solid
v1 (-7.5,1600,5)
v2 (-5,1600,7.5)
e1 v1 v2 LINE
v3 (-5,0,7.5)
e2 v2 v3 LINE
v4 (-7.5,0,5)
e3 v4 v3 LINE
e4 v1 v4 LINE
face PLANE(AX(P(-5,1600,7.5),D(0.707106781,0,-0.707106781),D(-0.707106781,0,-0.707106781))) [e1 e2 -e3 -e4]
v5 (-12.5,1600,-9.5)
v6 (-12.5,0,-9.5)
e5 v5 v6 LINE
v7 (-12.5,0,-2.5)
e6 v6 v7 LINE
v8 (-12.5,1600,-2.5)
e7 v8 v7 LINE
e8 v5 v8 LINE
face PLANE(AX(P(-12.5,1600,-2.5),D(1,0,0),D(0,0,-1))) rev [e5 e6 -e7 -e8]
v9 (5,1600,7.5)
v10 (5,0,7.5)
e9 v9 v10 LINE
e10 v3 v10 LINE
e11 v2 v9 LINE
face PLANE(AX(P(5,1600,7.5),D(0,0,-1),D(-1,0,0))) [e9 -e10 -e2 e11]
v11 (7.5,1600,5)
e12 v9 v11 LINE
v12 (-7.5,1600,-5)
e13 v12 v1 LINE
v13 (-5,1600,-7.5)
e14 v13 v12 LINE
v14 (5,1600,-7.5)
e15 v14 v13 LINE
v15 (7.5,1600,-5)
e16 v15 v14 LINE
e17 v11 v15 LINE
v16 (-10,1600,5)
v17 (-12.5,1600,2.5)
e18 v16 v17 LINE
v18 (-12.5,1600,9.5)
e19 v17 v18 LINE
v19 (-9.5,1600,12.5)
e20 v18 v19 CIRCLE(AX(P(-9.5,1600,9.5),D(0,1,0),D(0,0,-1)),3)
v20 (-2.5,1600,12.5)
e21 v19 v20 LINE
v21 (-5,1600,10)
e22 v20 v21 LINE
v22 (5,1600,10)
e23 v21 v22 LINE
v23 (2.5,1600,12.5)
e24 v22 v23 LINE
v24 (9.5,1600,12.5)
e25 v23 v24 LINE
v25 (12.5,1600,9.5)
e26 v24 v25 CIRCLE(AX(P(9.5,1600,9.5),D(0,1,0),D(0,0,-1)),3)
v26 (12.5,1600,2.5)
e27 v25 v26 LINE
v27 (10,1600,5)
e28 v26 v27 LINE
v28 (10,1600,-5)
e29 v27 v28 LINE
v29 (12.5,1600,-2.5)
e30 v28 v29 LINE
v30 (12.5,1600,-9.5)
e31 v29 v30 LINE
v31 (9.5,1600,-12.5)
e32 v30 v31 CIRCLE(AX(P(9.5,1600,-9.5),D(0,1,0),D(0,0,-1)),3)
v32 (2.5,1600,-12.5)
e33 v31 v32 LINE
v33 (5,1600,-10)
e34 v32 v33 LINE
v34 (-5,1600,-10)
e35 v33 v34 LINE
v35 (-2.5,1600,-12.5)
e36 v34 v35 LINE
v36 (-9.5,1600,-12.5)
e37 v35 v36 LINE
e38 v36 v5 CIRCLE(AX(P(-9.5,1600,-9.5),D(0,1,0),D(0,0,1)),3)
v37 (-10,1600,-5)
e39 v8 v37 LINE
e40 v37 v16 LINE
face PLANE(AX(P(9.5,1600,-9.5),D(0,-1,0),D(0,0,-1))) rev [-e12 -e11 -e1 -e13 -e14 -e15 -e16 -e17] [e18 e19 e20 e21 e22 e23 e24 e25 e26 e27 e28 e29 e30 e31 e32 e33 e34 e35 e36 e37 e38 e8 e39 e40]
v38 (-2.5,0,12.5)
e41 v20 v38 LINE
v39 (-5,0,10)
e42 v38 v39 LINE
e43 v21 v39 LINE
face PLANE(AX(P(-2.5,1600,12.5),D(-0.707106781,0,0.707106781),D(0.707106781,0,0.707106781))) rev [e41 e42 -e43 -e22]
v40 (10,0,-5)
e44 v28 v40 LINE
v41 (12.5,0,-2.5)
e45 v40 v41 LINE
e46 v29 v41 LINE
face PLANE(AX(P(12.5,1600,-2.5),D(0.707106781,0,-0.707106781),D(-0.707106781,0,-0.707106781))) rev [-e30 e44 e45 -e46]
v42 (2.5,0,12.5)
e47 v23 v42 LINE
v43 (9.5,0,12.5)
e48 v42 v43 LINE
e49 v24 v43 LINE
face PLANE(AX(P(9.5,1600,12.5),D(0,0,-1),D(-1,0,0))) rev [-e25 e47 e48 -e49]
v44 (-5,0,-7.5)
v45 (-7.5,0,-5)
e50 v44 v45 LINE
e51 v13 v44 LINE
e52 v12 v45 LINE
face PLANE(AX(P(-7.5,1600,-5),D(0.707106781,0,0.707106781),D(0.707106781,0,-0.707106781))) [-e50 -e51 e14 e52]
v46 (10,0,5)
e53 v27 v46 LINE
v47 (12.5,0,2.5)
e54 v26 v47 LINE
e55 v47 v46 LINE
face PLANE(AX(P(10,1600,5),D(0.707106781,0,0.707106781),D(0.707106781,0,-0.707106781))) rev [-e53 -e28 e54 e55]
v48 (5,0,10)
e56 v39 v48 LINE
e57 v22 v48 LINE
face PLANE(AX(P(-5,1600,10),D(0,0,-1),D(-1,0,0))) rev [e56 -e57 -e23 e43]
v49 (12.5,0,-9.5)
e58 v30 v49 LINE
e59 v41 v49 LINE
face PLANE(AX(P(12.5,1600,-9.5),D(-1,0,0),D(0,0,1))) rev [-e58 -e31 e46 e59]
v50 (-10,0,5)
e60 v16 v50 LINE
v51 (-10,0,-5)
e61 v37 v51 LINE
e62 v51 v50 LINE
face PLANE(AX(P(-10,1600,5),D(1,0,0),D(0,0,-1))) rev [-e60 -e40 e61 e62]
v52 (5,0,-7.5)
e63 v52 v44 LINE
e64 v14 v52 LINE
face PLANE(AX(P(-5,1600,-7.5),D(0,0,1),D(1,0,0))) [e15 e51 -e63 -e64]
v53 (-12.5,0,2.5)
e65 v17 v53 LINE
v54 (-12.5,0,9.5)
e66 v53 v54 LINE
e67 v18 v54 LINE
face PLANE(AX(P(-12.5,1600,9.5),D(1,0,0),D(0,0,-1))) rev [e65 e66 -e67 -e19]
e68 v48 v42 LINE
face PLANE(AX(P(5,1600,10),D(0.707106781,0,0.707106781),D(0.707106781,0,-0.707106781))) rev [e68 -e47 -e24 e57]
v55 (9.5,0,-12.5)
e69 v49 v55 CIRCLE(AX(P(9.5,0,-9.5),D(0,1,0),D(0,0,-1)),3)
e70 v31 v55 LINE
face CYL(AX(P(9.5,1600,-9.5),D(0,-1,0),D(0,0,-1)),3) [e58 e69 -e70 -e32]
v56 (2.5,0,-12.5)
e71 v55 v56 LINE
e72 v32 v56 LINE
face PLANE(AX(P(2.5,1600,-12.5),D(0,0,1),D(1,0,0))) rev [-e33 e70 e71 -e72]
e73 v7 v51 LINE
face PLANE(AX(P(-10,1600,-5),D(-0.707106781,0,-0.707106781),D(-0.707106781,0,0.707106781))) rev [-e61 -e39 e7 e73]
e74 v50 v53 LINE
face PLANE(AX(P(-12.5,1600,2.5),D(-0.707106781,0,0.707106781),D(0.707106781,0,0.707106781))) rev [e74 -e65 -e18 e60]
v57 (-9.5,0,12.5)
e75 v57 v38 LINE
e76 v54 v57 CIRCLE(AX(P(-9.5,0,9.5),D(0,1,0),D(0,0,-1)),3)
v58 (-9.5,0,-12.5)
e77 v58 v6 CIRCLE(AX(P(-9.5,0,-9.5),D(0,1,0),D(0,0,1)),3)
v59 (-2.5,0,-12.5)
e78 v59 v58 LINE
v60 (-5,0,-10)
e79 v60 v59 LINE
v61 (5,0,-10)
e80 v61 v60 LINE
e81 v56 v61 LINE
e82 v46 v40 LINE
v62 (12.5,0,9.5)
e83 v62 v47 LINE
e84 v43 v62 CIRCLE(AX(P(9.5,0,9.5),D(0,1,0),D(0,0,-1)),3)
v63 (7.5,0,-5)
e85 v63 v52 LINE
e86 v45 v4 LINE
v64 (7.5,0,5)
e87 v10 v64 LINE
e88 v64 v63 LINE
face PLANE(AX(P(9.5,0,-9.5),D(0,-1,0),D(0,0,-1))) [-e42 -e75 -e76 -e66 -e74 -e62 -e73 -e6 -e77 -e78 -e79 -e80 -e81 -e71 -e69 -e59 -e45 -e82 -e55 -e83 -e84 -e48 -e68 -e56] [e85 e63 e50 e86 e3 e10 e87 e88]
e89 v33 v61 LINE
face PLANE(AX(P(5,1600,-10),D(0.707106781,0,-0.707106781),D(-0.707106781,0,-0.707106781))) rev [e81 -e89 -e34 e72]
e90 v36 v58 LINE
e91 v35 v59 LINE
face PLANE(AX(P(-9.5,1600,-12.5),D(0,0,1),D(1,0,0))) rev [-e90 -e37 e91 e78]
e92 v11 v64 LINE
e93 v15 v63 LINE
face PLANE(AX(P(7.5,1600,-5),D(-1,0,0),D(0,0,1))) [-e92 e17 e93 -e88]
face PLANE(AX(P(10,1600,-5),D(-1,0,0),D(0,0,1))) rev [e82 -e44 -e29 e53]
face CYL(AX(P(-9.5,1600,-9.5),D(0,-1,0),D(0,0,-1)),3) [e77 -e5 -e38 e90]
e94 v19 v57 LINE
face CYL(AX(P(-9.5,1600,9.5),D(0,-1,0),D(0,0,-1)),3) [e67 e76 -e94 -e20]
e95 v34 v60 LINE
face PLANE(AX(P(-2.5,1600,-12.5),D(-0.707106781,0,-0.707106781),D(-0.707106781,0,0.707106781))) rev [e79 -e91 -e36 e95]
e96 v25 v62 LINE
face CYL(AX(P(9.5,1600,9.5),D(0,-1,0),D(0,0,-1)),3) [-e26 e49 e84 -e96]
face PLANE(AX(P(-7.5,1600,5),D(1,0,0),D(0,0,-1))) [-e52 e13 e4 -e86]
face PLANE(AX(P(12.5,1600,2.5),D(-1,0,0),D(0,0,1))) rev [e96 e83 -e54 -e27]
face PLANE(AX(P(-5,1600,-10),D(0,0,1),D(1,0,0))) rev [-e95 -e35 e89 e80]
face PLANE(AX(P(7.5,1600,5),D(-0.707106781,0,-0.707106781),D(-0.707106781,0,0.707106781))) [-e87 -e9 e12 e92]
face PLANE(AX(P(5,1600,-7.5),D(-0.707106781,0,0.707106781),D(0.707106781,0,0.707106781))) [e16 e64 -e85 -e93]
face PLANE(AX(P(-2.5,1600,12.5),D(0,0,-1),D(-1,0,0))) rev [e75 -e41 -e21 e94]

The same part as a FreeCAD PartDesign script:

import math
import FreeCAD as App
import Part
import Sketcher

V = App.Vector
Q = App.Units.Quantity

doc = App.newDocument("Part")
body = doc.addObject("PartDesign::Body", "Body")

# Sketch on XZ plane
sketch1 = body.newObject("Sketcher::SketchObject", "Sketch")
sketch1.AttachmentSupport = (doc.getObject("XZ_Plane"), [""])
sketch1.MapMode = "FlatFace"
sketch1.addGeometry([
    Part.LineSegment(V(-2.5, -12.5, 0), V(-9.5, -12.5, 0)),  # 0
    Part.ArcOfCircle(Part.Circle(V(-9.5, -9.5, 0), V(0, 0, 1), 3), math.radians(180), math.radians(270)),  # 1
    Part.LineSegment(V(-12.5, -9.5, 0), V(-12.5, -2.5, 0)),  # 2
    Part.LineSegment(V(-12.5, -2.5, 0), V(-10, -5, 0)),  # 3
    Part.LineSegment(V(-10, -5, 0), V(-10, 5, 0)),  # 4
    Part.LineSegment(V(-10, 5, 0), V(-12.5, 2.5, 0)),  # 5
    Part.LineSegment(V(-12.5, 2.5, 0), V(-12.5, 9.5, 0)),  # 6
    Part.ArcOfCircle(Part.Circle(V(-9.5, 9.5, 0), V(0, 0, 1), 3), math.radians(90), math.radians(180)),  # 7
    Part.LineSegment(V(-9.5, 12.5, 0), V(-2.5, 12.5, 0)),  # 8
    Part.LineSegment(V(-2.5, 12.5, 0), V(-5, 10, 0)),  # 9
    Part.LineSegment(V(-5, 10, 0), V(5, 10, 0)),  # 10
    Part.LineSegment(V(5, 10, 0), V(2.5, 12.5, 0)),  # 11
    Part.LineSegment(V(2.5, 12.5, 0), V(9.5, 12.5, 0)),  # 12
    Part.ArcOfCircle(Part.Circle(V(9.5, 9.5, 0), V(0, 0, 1), 3), math.radians(0), math.radians(90)),  # 13
    Part.LineSegment(V(12.5, 9.5, 0), V(12.5, 2.5, 0)),  # 14
    Part.LineSegment(V(12.5, 2.5, 0), V(10, 5, 0)),  # 15
    Part.LineSegment(V(10, 5, 0), V(10, -5, 0)),  # 16
    Part.LineSegment(V(10, -5, 0), V(12.5, -2.5, 0)),  # 17
    Part.LineSegment(V(12.5, -2.5, 0), V(12.5, -9.5, 0)),  # 18
    Part.ArcOfCircle(Part.Circle(V(9.5, -9.5, 0), V(0, 0, 1), 3), math.radians(-90), math.radians(0)),  # 19
    Part.LineSegment(V(9.5, -12.5, 0), V(2.5, -12.5, 0)),  # 20
    Part.LineSegment(V(2.5, -12.5, 0), V(5, -10, 0)),  # 21
    Part.LineSegment(V(5, -10, 0), V(-5, -10, 0)),  # 22
    Part.LineSegment(V(-5, -10, 0), V(-2.5, -12.5, 0)),  # 23
    Part.LineSegment(V(-7.5, -5, 0), V(-5, -7.5, 0)),  # 24
    Part.LineSegment(V(-5, -7.5, 0), V(5, -7.5, 0)),  # 25
    Part.LineSegment(V(5, -7.5, 0), V(7.5, -5, 0)),  # 26
    Part.LineSegment(V(7.5, -5, 0), V(7.5, 5, 0)),  # 27
    Part.LineSegment(V(7.5, 5, 0), V(5, 7.5, 0)),  # 28
    Part.LineSegment(V(5, 7.5, 0), V(-5, 7.5, 0)),  # 29
    Part.LineSegment(V(-5, 7.5, 0), V(-7.5, 5, 0)),  # 30
    Part.LineSegment(V(-7.5, 5, 0), V(-7.5, -5, 0)),  # 31
], False)
sketch1.addConstraint([
    Sketcher.Constraint("Tangent", 0, 2, 1, 2),
    Sketcher.Constraint("Tangent", 1, 1, 2, 1),
    Sketcher.Constraint("Coincident", 2, 2, 3, 1),
    Sketcher.Constraint("Coincident", 3, 2, 4, 1),
    Sketcher.Constraint("Coincident", 4, 2, 5, 1),
    Sketcher.Constraint("Coincident", 5, 2, 6, 1),
    Sketcher.Constraint("Tangent", 6, 2, 7, 2),
    Sketcher.Constraint("Tangent", 7, 1, 8, 1),
    Sketcher.Constraint("Coincident", 8, 2, 9, 1),
    Sketcher.Constraint("Coincident", 9, 2, 10, 1),
    Sketcher.Constraint("Coincident", 10, 2, 11, 1),
    Sketcher.Constraint("Coincident", 11, 2, 12, 1),
    Sketcher.Constraint("Tangent", 12, 2, 13, 2),
    Sketcher.Constraint("Tangent", 13, 1, 14, 1),
    Sketcher.Constraint("Coincident", 14, 2, 15, 1),
    Sketcher.Constraint("Coincident", 15, 2, 16, 1),
    Sketcher.Constraint("Coincident", 16, 2, 17, 1),
    Sketcher.Constraint("Coincident", 17, 2, 18, 1),
    Sketcher.Constraint("Tangent", 18, 2, 19, 2),
    Sketcher.Constraint("Tangent", 19, 1, 20, 1),
    Sketcher.Constraint("Coincident", 20, 2, 21, 1),
    Sketcher.Constraint("Coincident", 21, 2, 22, 1),
    Sketcher.Constraint("Coincident", 22, 2, 23, 1),
    Sketcher.Constraint("Coincident", 23, 2, 0, 1),
    Sketcher.Constraint("Coincident", 24, 2, 25, 1),
    Sketcher.Constraint("Coincident", 25, 2, 26, 1),
    Sketcher.Constraint("Coincident", 26, 2, 27, 1),
    Sketcher.Constraint("Coincident", 27, 2, 28, 1),
    Sketcher.Constraint("Coincident", 28, 2, 29, 1),
    Sketcher.Constraint("Coincident", 29, 2, 30, 1),
    Sketcher.Constraint("Coincident", 30, 2, 31, 1),
    Sketcher.Constraint("Coincident", 31, 2, 24, 1),
    Sketcher.Constraint("Horizontal", 0),
    Sketcher.Constraint("Vertical", 2),
    Sketcher.Constraint("Vertical", 4),
    Sketcher.Constraint("Vertical", 6),
    Sketcher.Constraint("Horizontal", 8),
    Sketcher.Constraint("Horizontal", 10),
    Sketcher.Constraint("Horizontal", 12),
    Sketcher.Constraint("Vertical", 14),
    Sketcher.Constraint("Vertical", 16),
    Sketcher.Constraint("Vertical", 18),
    Sketcher.Constraint("Horizontal", 20),
    Sketcher.Constraint("Horizontal", 22),
    Sketcher.Constraint("Horizontal", 25),
    Sketcher.Constraint("Vertical", 27),
    Sketcher.Constraint("Horizontal", 29),
    Sketcher.Constraint("Vertical", 31),
    Sketcher.Constraint("Equal", 1, 7),
    Sketcher.Constraint("Equal", 7, 13),
    Sketcher.Constraint("Equal", 13, 19),
    Sketcher.Constraint("Symmetric", 1, 3, 13, 3, -1, 1),
    Sketcher.Constraint("Symmetric", 7, 3, 19, 3, -1, 1),
    Sketcher.Constraint("Symmetric", 3, 2, 15, 2, -1, 1),
    Sketcher.Constraint("Symmetric", 9, 2, 21, 2, -1, 1),
    Sketcher.Constraint("Symmetric", 24, 2, 28, 2, -1, 1),
    Sketcher.Constraint("Symmetric", 26, 2, 30, 2, -1, 1),
    Sketcher.Constraint("Symmetric", 7, 3, 13, 3, -2),
    Sketcher.Constraint("Perpendicular", 3, 5),
    Sketcher.Constraint("Parallel", 5, 9),
    Sketcher.Constraint("Perpendicular", 9, 11),
    Sketcher.Constraint("Parallel", 11, 15),
    Sketcher.Constraint("Perpendicular", 15, 17),
    Sketcher.Constraint("Parallel", 17, 21),
    Sketcher.Constraint("Perpendicular", 21, 23),
    Sketcher.Constraint("Parallel", 23, 24),
    Sketcher.Constraint("Perpendicular", 24, 26),
    Sketcher.Constraint("Perpendicular", 26, 28),
    Sketcher.Constraint("Perpendicular", 28, 30),
    Sketcher.Constraint("Horizontal", 5, 2, 14, 2),
    Sketcher.Constraint("Horizontal", 4, 2, 15, 2),
    Sketcher.Constraint("Horizontal", 3, 2, 16, 2),
    Sketcher.Constraint("Horizontal", 16, 2, 26, 2),
    Sketcher.Constraint("Horizontal", 15, 2, 27, 2),
    Sketcher.Constraint("Vertical", 11, 2, 20, 2),
    Sketcher.Constraint("Vertical", 9, 2, 22, 2),
    Sketcher.Constraint("Vertical", 22, 2, 24, 2),
    Sketcher.Constraint("Equal", 20, 2),
    Sketcher.Constraint("Equal", 29, 4),
    Sketcher.Constraint("Equal", 5, 9),
    Sketcher.Constraint("Equal", 23, 24),
    Sketcher.Constraint("Radius", 1, Q("3 mm")),
    Sketcher.Constraint("DistanceX", 0, 2, 0, 1, Q("7 mm")),
    Sketcher.Constraint("DistanceX", 10, 1, 10, 2, Q("10 mm")),
    Sketcher.Constraint("DistanceX", 3, 2, -1, 1, Q("10 mm")),
])
pad1 = body.newObject("PartDesign::Pad", "Pad")
pad1.Profile = sketch1
pad1.Length = 1600
pad1.Reversed = True

doc.recompute()
